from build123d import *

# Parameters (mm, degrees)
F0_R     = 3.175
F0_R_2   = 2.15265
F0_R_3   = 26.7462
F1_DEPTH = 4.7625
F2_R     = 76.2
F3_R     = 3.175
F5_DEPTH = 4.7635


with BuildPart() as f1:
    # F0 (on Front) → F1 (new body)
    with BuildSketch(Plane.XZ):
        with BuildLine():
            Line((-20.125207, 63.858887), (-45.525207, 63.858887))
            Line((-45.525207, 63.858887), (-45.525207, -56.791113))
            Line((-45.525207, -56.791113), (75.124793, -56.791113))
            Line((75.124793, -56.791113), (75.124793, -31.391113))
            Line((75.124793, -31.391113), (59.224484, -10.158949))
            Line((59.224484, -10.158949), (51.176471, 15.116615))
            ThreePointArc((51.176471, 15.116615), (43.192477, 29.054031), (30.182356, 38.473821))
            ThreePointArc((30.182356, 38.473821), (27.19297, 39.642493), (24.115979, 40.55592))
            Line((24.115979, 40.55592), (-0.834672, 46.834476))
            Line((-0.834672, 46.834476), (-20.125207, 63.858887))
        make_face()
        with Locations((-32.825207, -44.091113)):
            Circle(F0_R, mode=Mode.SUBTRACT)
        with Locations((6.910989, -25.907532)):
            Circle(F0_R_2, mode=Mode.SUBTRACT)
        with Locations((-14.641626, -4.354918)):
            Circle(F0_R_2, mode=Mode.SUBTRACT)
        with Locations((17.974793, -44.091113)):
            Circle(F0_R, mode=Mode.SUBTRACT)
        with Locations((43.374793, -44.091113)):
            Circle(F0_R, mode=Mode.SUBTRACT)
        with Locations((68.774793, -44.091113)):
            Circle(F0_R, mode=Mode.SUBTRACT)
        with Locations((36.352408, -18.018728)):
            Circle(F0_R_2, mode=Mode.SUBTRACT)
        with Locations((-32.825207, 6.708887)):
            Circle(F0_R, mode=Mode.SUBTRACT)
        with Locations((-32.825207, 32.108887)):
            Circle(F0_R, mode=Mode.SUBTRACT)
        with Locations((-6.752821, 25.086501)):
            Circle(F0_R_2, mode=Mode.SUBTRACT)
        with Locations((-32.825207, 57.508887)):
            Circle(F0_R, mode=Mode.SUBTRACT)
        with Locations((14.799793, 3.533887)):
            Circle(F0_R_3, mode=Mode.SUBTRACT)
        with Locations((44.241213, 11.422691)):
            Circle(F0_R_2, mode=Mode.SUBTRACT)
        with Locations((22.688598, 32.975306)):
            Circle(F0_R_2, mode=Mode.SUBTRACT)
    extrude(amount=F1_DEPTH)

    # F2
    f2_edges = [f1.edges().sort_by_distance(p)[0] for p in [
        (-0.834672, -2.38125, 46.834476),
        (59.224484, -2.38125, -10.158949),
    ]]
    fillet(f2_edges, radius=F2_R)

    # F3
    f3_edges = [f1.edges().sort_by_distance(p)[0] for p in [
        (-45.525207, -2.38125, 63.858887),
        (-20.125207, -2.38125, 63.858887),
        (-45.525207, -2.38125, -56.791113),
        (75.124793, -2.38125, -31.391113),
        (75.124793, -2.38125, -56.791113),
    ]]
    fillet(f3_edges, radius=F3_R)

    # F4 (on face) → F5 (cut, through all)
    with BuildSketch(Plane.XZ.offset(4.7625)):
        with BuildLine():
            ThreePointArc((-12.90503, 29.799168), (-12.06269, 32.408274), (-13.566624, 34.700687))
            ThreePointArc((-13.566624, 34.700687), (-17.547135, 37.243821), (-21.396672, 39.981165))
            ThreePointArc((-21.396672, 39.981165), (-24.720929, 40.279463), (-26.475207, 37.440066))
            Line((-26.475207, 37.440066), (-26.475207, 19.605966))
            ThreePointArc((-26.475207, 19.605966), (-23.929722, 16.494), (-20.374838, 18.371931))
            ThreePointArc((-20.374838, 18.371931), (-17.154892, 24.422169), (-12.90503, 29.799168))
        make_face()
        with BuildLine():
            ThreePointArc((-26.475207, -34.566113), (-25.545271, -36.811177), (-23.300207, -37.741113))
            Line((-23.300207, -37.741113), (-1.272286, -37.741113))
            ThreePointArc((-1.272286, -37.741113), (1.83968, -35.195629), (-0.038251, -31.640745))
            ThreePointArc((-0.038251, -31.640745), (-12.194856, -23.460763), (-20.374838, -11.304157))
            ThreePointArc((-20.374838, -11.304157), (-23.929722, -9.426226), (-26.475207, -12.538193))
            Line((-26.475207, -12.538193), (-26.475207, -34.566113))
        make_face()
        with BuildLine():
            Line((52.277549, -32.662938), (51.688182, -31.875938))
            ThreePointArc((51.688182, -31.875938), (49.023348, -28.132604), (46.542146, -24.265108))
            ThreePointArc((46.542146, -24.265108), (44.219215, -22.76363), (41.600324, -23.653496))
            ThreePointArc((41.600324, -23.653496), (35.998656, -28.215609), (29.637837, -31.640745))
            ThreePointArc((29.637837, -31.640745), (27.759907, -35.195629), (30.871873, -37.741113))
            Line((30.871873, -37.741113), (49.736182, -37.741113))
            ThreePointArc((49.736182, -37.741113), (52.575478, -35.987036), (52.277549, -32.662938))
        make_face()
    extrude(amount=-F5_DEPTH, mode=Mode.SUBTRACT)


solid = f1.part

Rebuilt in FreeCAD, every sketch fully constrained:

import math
import FreeCAD as App
import Part
import Sketcher
Q = App.Units.Quantity


def edges_at(feature, points):
    """Names of the edges that pass closest to the given points."""
    edges = feature.Shape.Edges
    near = lambda p: min(range(len(edges)), key=lambda i: edges[i].distToShape(Part.Vertex(*p))[0])
    return sorted({f"Edge{near(p) + 1}" for p in points})

doc = App.newDocument("Part")
body = doc.addObject("PartDesign::Body", "Body")

sketch1 = body.newObject("Sketcher::SketchObject", "Sketch")
sketch1.AttachmentSupport = (doc.getObject("XZ_Plane"), [""])
sketch1.MapMode = "FlatFace"
sketch1.addGeometry(Part.LineSegment(App.Vector(-20.125207, 63.858887, 0), App.Vector(-45.525207, 63.858887, 0)), False)
sketch1.addGeometry(Part.LineSegment(App.Vector(-45.525207, 63.858887, 0), App.Vector(-45.525207, -56.791113, 0)), False)
sketch1.addGeometry(Part.LineSegment(App.Vector(-45.525207, -56.791113, 0), App.Vector(75.124793, -56.791113, 0)), False)
sketch1.addGeometry(Part.LineSegment(App.Vector(75.124793, -56.791113, 0), App.Vector(75.124793, -31.391113, 0)), False)
sketch1.addGeometry(Part.LineSegment(App.Vector(75.124793, -31.391113, 0), App.Vector(59.224484, -10.158949, 0)), False)
sketch1.addGeometry(Part.LineSegment(App.Vector(59.224484, -10.158949, 0), App.Vector(51.176471, 15.116615, 0)), False)
sketch1.addGeometry(Part.ArcOfCircle(Part.Circle(App.Vector(14.799793, 3.533886, 0), App.Vector(0, 0, 1), 38.176201), math.radians(17.66204), math.radians(66.238154)), False)
sketch1.addGeometry(Part.ArcOfCircle(Part.Circle(App.Vector(14.799819, 3.533967, 0), App.Vector(0, 0, 1), 38.176116), math.radians(66.23814), math.radians(75.875418)), False)
sketch1.addGeometry(Part.LineSegment(App.Vector(24.115979, 40.55592, 0), App.Vector(-0.834672, 46.834476, 0)), False)
sketch1.addGeometry(Part.LineSegment(App.Vector(-0.834672, 46.834476, 0), App.Vector(-20.125207, 63.858887, 0)), False)
sketch1.addGeometry(Part.Circle(App.Vector(-32.825207, -44.091113, 0), App.Vector(0, 0, 1), 3.175), False)
sketch1.addGeometry(Part.Circle(App.Vector(6.910989, -25.907532, 0), App.Vector(0, 0, 1), 2.15265), False)
sketch1.addGeometry(Part.Circle(App.Vector(-32.825207, 6.708887, 0), App.Vector(0, 0, 1), 3.175), False)
sketch1.addGeometry(Part.Circle(App.Vector(-14.641626, -4.354918, 0), App.Vector(0, 0, 1), 2.15265), False)
sketch1.addGeometry(Part.Circle(App.Vector(14.799793, 3.533887, 0), App.Vector(0, 0, 1), 26.7462), False)
sketch1.addGeometry(Part.Circle(App.Vector(17.974793, -44.091113, 0), App.Vector(0, 0, 1), 3.175), False)
sketch1.addGeometry(Part.Circle(App.Vector(43.374793, -44.091113, 0), App.Vector(0, 0, 1), 3.175), False)
sketch1.addGeometry(Part.Circle(App.Vector(68.774793, -44.091113, 0), App.Vector(0, 0, 1), 3.175), False)
sketch1.addGeometry(Part.Circle(App.Vector(36.352408, -18.018728, 0), App.Vector(0, 0, 1), 2.15265), False)
sketch1.addGeometry(Part.Circle(App.Vector(-32.825207, 32.108887, 0), App.Vector(0, 0, 1), 3.175), False)
sketch1.addGeometry(Part.Circle(App.Vector(-6.752821, 25.086501, 0), App.Vector(0, 0, 1), 2.15265), False)
sketch1.addGeometry(Part.Circle(App.Vector(-32.825207, 57.508887, 0), App.Vector(0, 0, 1), 3.175), False)
sketch1.addGeometry(Part.Circle(App.Vector(44.241213, 11.422691, 0), App.Vector(0, 0, 1), 2.15265), False)
sketch1.addGeometry(Part.Circle(App.Vector(22.688598, 32.975306, 0), App.Vector(0, 0, 1), 2.15265), False)
sketch1.addConstraint(Sketcher.Constraint("Coincident", 0, 2, 1, 1))
sketch1.addConstraint(Sketcher.Constraint("Coincident", 1, 2, 2, 1))
sketch1.addConstraint(Sketcher.Constraint("Coincident", 2, 2, 3, 1))
sketch1.addConstraint(Sketcher.Constraint("Coincident", 3, 2, 4, 1))
sketch1.addConstraint(Sketcher.Constraint("Coincident", 4, 2, 5, 1))
sketch1.addConstraint(Sketcher.Constraint("Coincident", 5, 2, 6, 1))
sketch1.addConstraint(Sketcher.Constraint("Coincident", 6, 2, 7, 1))
sketch1.addConstraint(Sketcher.Constraint("Coincident", 7, 2, 8, 1))
sketch1.addConstraint(Sketcher.Constraint("Coincident", 8, 2, 9, 1))
sketch1.addConstraint(Sketcher.Constraint("Coincident", 9, 2, 0, 1))
sketch1.addConstraint(Sketcher.Constraint("Horizontal", 0))
sketch1.addConstraint(Sketcher.Constraint("Vertical", 1))
sketch1.addConstraint(Sketcher.Constraint("Horizontal", 2))
sketch1.addConstraint(Sketcher.Constraint("Vertical", 3))
sketch1.addConstraint(Sketcher.Constraint("Coincident", 14, 3, 6, 3))
sketch1.addConstraint(Sketcher.Constraint("Diameter", 10, Q("0.25 in")))
sketch1.addConstraint(Sketcher.Constraint("Diameter", 12, Q("0.25 in")))
sketch1.addConstraint(Sketcher.Constraint("Diameter", 15, Q("0.25 in")))
sketch1.addConstraint(Sketcher.Constraint("Diameter", 16, Q("0.25 in")))
sketch1.addConstraint(Sketcher.Constraint("Diameter", 17, Q("0.25 in")))
sketch1.addConstraint(Sketcher.Constraint("Diameter", 19, Q("0.25 in")))
sketch1.addConstraint(Sketcher.Constraint("Diameter", 21, Q("0.25 in")))
sketch1.addConstraint(Sketcher.Constraint("DistanceX", 0, 2, 0, 1, Q("1 in")))
sketch1.addConstraint(Sketcher.Constraint("DistanceY", 3, 1, 3, 2, Q("1 in")))
sketch1.addConstraint(Sketcher.Constraint("Diameter", 14, Q("2.106 in")))
sketch1.addConstraint(Sketcher.Constraint("Radius", 6, Q("1.503 in")))
sketch1.addConstraint(Sketcher.Constraint("DistanceY", 10, 3, 12, 3, Q("2 in")))
sketch1.addConstraint(Sketcher.Constraint("DistanceX", 10, 3, 15, 3, Q("2 in")))
sketch1.addConstraint(Sketcher.Constraint("DistanceX", 15, 3, 16, 3, Q("1 in")))
sketch1.addConstraint(Sketcher.Constraint("DistanceX", 16, 3, 17, 3, Q("1 in")))
sketch1.addConstraint(Sketcher.Constraint("DistanceY", 12, 3, 19, 3, Q("1 in")))
sketch1.addConstraint(Sketcher.Constraint("DistanceY", 19, 3, 21, 3, Q("1 in")))
sketch1.addConstraint(Sketcher.Constraint("Diameter", 11, Q("0.1695 in")))
sketch1.addConstraint(Sketcher.Constraint("Diameter", 13, Q("0.1695 in")))
sketch1.addConstraint(Sketcher.Constraint("Diameter", 18, Q("0.1695 in")))
sketch1.addConstraint(Sketcher.Constraint("Diameter", 20, Q("0.1695 in")))
sketch1.addConstraint(Sketcher.Constraint("Diameter", 22, Q("0.1695 in")))
sketch1.addConstraint(Sketcher.Constraint("Diameter", 23, Q("0.1695 in")))
sketch1.addConstraint(Sketcher.Constraint("DistanceX", 2, 1, 2, 2, Q("4.75 in")))
sketch1.addConstraint(Sketcher.Constraint("DistanceY", 1, 2, 1, 1, Q("4.75 in")))
sketch1.addConstraint(Sketcher.Constraint("DistanceX", 0, 2, 21, 3, Q("0.5 in")))
sketch1.addConstraint(Sketcher.Constraint("DistanceX", 0, 2, 19, 3, Q("0.5 in")))
sketch1.addConstraint(Sketcher.Constraint("DistanceX", 0, 2, 12, 3, Q("0.5 in")))
sketch1.addConstraint(Sketcher.Constraint("DistanceX", 1, 2, 10, 3, Q("0.5 in")))
sketch1.addConstraint(Sketcher.Constraint("DistanceY", 1, 2, 10, 3, Q("0.5 in")))
sketch1.addConstraint(Sketcher.Constraint("DistanceY", 1, 2, 15, 3, Q("0.5 in")))
sketch1.addConstraint(Sketcher.Constraint("DistanceY", 2, 2, 17, 3, Q("0.5 in")))
sketch1.addConstraint(Sketcher.Constraint("DistanceY", 2, 2, 16, 3, Q("0.5 in")))
sketch1.addConstraint(Sketcher.Constraint("DistanceX", 10, 3, 6, 3, Q("1.875 in")))
sketch1.addConstraint(Sketcher.Constraint("DistanceY", 10, 3, 6, 3, Q("1.8749999 in")))
sketch1.addConstraint(Sketcher.Constraint("Radius", 7, 38.176116))
sketch1.addConstraint(Sketcher.Constraint("DistanceY", -1, 1, 20, 3, 25.086501))
sketch1.addConstraint(Sketcher.Constraint("DistanceY", 11, 3, 7, 3, 29.441499))
sketch1.addConstraint(Sketcher.Constraint("DistanceY", 6, 2, 7, 2, 2.082099))
sketch1.addConstraint(Sketcher.Constraint("DistanceX", 20, 3, 7, 2, 30.8688))
sketch1.addConstraint(Sketcher.Constraint("Distance", 8, 25.728491))
sketch1.addConstraint(Sketcher.Constraint("DistanceX", -1, 1, 7, 3, 14.799819))
sketch1.addConstraint(Sketcher.Constraint("DistanceX", -1, 1, 11, 3, 6.910989))
sketch1.addConstraint(Sketcher.Constraint("DistanceY", 11, 3, -1, 1, 25.907532))
sketch1.addConstraint(Sketcher.Constraint("DistanceX", 20, 3, -1, 1, 6.752821))
sketch1.addConstraint(Sketcher.Constraint("DistanceY", -1, 1, 22, 3, 11.422691))
sketch1.addConstraint(Sketcher.Constraint("DistanceY", 4, 2, -1, 1, 10.158949))
sketch1.addConstraint(Sketcher.Constraint("DistanceX", -1, 1, 5, 2, 51.176471))
sketch1.addConstraint(Sketcher.Constraint("DistanceX", 8, 2, -1, 1, 0.834672))
sketch1.addConstraint(Sketcher.Constraint("DistanceY", 10, 3, 7, 3, 47.62508))
sketch1.addConstraint(Sketcher.Constraint("DistanceX", 12, 3, 13, 3, 18.183581))
sketch1.addConstraint(Sketcher.Constraint("DistanceX", 11, 3, 18, 3, 29.441419))
sketch1.addConstraint(Sketcher.Constraint("DistanceY", 13, 3, 20, 3, 29.441419))
sketch1.addConstraint(Sketcher.Constraint("DistanceY", 18, 3, 22, 3, 29.441419))
sketch1.addConstraint(Sketcher.Constraint("DistanceX", 14, 3, 22, 3, 29.44142))
sketch1.addConstraint(Sketcher.Constraint("DistanceX", 7, 3, 23, 3, 7.888779))
sketch1.addConstraint(Sketcher.Constraint("DistanceY", 7, 3, 23, 3, 29.441339))
sketch1.addConstraint(Sketcher.Constraint("DistanceX", 22, 3, 4, 2, 14.983271))
pad1 = body.newObject("PartDesign::Pad", "Pad")
pad1.Profile = sketch1
pad1.Length = Q("0.1875 in")
doc.recompute()

fillet = body.newObject("PartDesign::Fillet", "Fillet")
fillet.Base = (pad1, edges_at(pad1, [(-0.835, -2.381, 46.834), (59.224, -2.381, -10.159)]))
fillet.Radius = Q("3 in")
doc.recompute()

fillet2 = body.newObject("PartDesign::Fillet", "Fillet001")
fillet2.Base = (fillet, edges_at(fillet, [
    (-45.525, -2.381, 63.859),
    (-20.125, -2.381, 63.859),
    (-45.525, -2.381, -56.791),
    (75.125, -2.381, -31.391),
    (75.125, -2.381, -56.791),
]))
fillet2.Radius = Q("0.125 in")

sketch2 = body.newObject("Sketcher::SketchObject", "Sketch001")
sketch2.AttachmentSupport = (doc.getObject("XZ_Plane"), [""])
sketch2.MapMode = "FlatFace"
sketch2.AttachmentOffset = App.Placement(App.Vector(0, 0, 0.1875 * 25.4), App.Rotation())
sketch2.addGeometry(Part.ArcOfCircle(Part.Circle(App.Vector(-15.209157, 31.983573, 0), App.Vector(0, 0, 1), 3.175), math.radians(-43.47212), math.radians(58.846466)), False)
sketch2.addGeometry(Part.ArcOfCircle(Part.Circle(App.Vector(35.709254, 116.213959, 0), App.Vector(0, 0, 1), 95.249807), math.radians(-126.836852), math.radians(-121.153531)), False)
sketch2.addGeometry(Part.ArcOfCircle(Part.Circle(App.Vector(-23.300207, 37.440066, 0), App.Vector(0, 0, 1), 3.175), math.radians(53.163159), math.radians(179.999999)), False)
sketch2.addGeometry(Part.LineSegment(App.Vector(-26.475207, 37.440066, 0), App.Vector(-26.475207, 19.605966, 0)), False)
sketch2.addGeometry(Part.ArcOfCircle(Part.Circle(App.Vector(-23.300207, 19.605967, 0), App.Vector(0, 0, 1), 3.175), math.radians(-179.999986), math.radians(-22.871933)), False)
sketch2.addGeometry(Part.ArcOfCircle(Part.Circle(App.Vector(14.799787, 3.533891, 0), App.Vector(0, 0, 1), 38.176193), math.radians(136.527883), math.radians(157.128069)), False)
sketch2.addGeometry(Part.ArcOfCircle(Part.Circle(App.Vector(-23.300207, -34.566113, 0), App.Vector(0, 0, 1), 3.175), math.radians(-179.999998), math.radians(-90.000002)), False)
sketch2.addGeometry(Part.LineSegment(App.Vector(-23.300207, -37.741113, 0), App.Vector(-1.272286, -37.741113, 0)), False)
sketch2.addGeometry(Part.ArcOfCircle(Part.Circle(App.Vector(-1.272286, -34.566113, 0), App.Vector(0, 0, 1), 3.175), math.radians(-89.999999), math.radians(67.128076)), False)
sketch2.addGeometry(Part.ArcOfCircle(Part.Circle(App.Vector(14.7998, 3.533892, 0), App.Vector(0, 0, 1), 38.176208), math.radians(-157.128065), math.radians(-112.871938)), False)
sketch2.addGeometry(Part.ArcOfCircle(Part.Circle(App.Vector(-23.300207, -12.538193, 0), App.Vector(0, 0, 1), 3.175), math.radians(22.871933), math.radians(180.000004)), False)
sketch2.addGeometry(Part.LineSegment(App.Vector(-26.475207, -12.538193, 0), App.Vector(-26.475207, -34.566113, 0)), False)
sketch2.addGeometry(Part.LineSegment(App.Vector(52.277549, -32.662938, 0), App.Vector(51.688182, -31.875938, 0)), False)
sketch2.addGeometry(Part.ArcOfCircle(Part.Circle(App.Vector(127.929085, 25.219233, 0), App.Vector(0, 0, 1), 95.24985), math.radians(-148.699842), math.radians(-143.17125)), False)
sketch2.addGeometry(Part.ArcOfCircle(Part.Circle(App.Vector(43.829244, -25.914591, 0), App.Vector(0, 0, 1), 3.175001), math.radians(31.300196), math.radians(134.589424)), False)
sketch2.addGeometry(Part.ArcOfCircle(Part.Circle(App.Vector(14.799799, 3.533876, 0), App.Vector(0, 0, 1), 38.176188), math.radians(-67.128071), math.radians(-45.410542)), False)
sketch2.addGeometry(Part.ArcOfCircle(Part.Circle(App.Vector(30.871873, -34.566113, 0), App.Vector(0, 0, 1), 3.175), math.radians(112.871945), math.radians(269.999995)), False)
sketch2.addGeometry(Part.LineSegment(App.Vector(30.871873, -37.741113, 0), App.Vector(49.736182, -37.741113, 0)), False)
sketch2.addGeometry(Part.ArcOfCircle(Part.Circle(App.Vector(49.736182, -34.566113, 0), App.Vector(0, 0, 1), 3.175), math.radians(-90.000001), math.radians(36.828756)), False)
sketch2.addConstraint(Sketcher.Constraint("Coincident", 0, 2, 1, 2))
sketch2.addConstraint(Sketcher.Constraint("Coincident", 1, 1, 2, 1))
sketch2.addConstraint(Sketcher.Constraint("Coincident", 2, 2, 3, 1))
sketch2.addConstraint(Sketcher.Constraint("Coincident", 3, 2, 4, 1))
sketch2.addConstraint(Sketcher.Constraint("Coincident", 4, 2, 5, 2))
sketch2.addConstraint(Sketcher.Constraint("Coincident", 5, 1, 0, 1))
sketch2.addConstraint(Sketcher.Constraint("Coincident", 6, 2, 7, 1))
sketch2.addConstraint(Sketcher.Constraint("Coincident", 7, 2, 8, 1))
sketch2.addConstraint(Sketcher.Constraint("Coincident", 8, 2, 9, 2))
sketch2.addConstraint(Sketcher.Constraint("Coincident", 9, 1, 10, 1))
sketch2.addConstraint(Sketcher.Constraint("Coincident", 10, 2, 11, 1))
sketch2.addConstraint(Sketcher.Constraint("Coincident", 11, 2, 6, 1))
sketch2.addConstraint(Sketcher.Constraint("Coincident", 12, 2, 13, 2))
sketch2.addConstraint(Sketcher.Constraint("Coincident", 13, 1, 14, 1))
sketch2.addConstraint(Sketcher.Constraint("Coincident", 14, 2, 15, 2))
sketch2.addConstraint(Sketcher.Constraint("Coincident", 15, 1, 16, 1))
sketch2.addConstraint(Sketcher.Constraint("Coincident", 16, 2, 17, 1))
sketch2.addConstraint(Sketcher.Constraint("Coincident", 17, 2, 18, 1))
sketch2.addConstraint(Sketcher.Constraint("Coincident", 18, 2, 12, 1))
sketch2.addConstraint(Sketcher.Constraint("Vertical", 3))
sketch2.addConstraint(Sketcher.Constraint("Horizontal", 7))
sketch2.addConstraint(Sketcher.Constraint("Vertical", 11))
sketch2.addConstraint(Sketcher.Constraint("Horizontal", 17))
sketch2.addConstraint(Sketcher.Constraint("Radius", 0, Q("0.125 in")))
sketch2.addConstraint(Sketcher.Constraint("Radius", 2, Q("0.125 in")))
sketch2.addConstraint(Sketcher.Constraint("Radius", 4, Q("0.125 in")))
sketch2.addConstraint(Sketcher.Constraint("Radius", 6, Q("0.125 in")))
sketch2.addConstraint(Sketcher.Constraint("Radius", 8, Q("0.125 in")))
sketch2.addConstraint(Sketcher.Constraint("Radius", 10, Q("0.125 in")))
sketch2.addConstraint(Sketcher.Constraint("Radius", 14, Q("0.1250001 in")))
sketch2.addConstraint(Sketcher.Constraint("Radius", 16, Q("0.125 in")))
sketch2.addConstraint(Sketcher.Constraint("Radius", 18, Q("0.125 in")))
sketch2.addConstraint(Sketcher.Constraint("DistanceY", 6, 3, 5, 3, Q("1.5000001 in")))
sketch2.addConstraint(Sketcher.Constraint("DistanceY", 16, 3, 5, 3, Q("1.5000001 in")))
sketch2.addConstraint(Sketcher.Constraint("Radius", 13, 95.24985))
sketch2.addConstraint(Sketcher.Constraint("DistanceY", 5, 1, 0, 3, Q("0.0860002 in")))
sketch2.addConstraint(Sketcher.Constraint("DistanceX", 10, 2, 6, 2, Q("0.125 in")))
sketch2.addConstraint(Sketcher.Constraint("DistanceY", 6, 2, 11, 2, Q("0.125 in")))
sketch2.addConstraint(Sketcher.Constraint("DistanceY", 3, 2, 3, 1, 17.8341))
sketch2.addConstraint(Sketcher.Constraint("Radius", 1, 95.249807))
sketch2.addConstraint(Sketcher.Constraint("Radius", 5, 38.176193))
sketch2.addConstraint(Sketcher.Constraint("Radius", 9, 38.176208))
sketch2.addConstraint(Sketcher.Constraint("Radius", 15, 38.176188))
sketch2.addConstraint(Sketcher.Constraint("DistanceX", 13, 1, 12, 2, Q("0.2025998 in")))
sketch2.addConstraint(Sketcher.Constraint("DistanceX", 7, 1, 7, 2, 22.027921))
sketch2.addConstraint(Sketcher.Constraint("DistanceX", 17, 1, 17, 2, 18.864309))
sketch2.addConstraint(Sketcher.Constraint("DistanceY", 11, 2, 11, 1, 22.02792))
sketch2.addConstraint(Sketcher.Constraint("DistanceX", -1, 1, 9, 3, 14.7998))
sketch2.addConstraint(Sketcher.Constraint("DistanceX", -1, 1, 15, 3, 14.799799))
sketch2.addConstraint(Sketcher.Constraint("DistanceY", 4, 3, 2, 3, 17.834099))
sketch2.addConstraint(Sketcher.Constraint("DistanceX", 5, 3, 13, 3, 113.129298))
sketch2.addConstraint(Sketcher.Constraint("DistanceY", 14, 3, 10, 3, 13.376398))
sketch2.addConstraint(Sketcher.Constraint("DistanceY", 2, 3, 1, 1, 2.541099))
sketch2.addConstraint(Sketcher.Constraint("DistanceY", 2, 2, 1, 1, 2.541099))
sketch2.addConstraint(Sketcher.Constraint("DistanceX", 18, 3, 12, 2, 1.952))
sketch2.addConstraint(Sketcher.Constraint("DistanceX", 17, 2, 12, 2, 1.952))
sketch2.addConstraint(Sketcher.Constraint("DistanceY", 18, 2, 12, 2, 0.787))
sketch2.addConstraint(Sketcher.Constraint("Distance", 12, 0.98322))
sketch2.addConstraint(Sketcher.Constraint("DistanceY", -1, 1, 1, 3, 116.213959))
sketch2.addConstraint(Sketcher.Constraint("DistanceY", -1, 1, 5, 3, 3.533891))
sketch2.addConstraint(Sketcher.Constraint("DistanceY", 14, 3, -1, 1, 25.914591))
sketch2.addConstraint(Sketcher.Constraint("DistanceX", 1, 1, -1, 1, 21.396672))
sketch2.addConstraint(Sketcher.Constraint("DistanceX", 4, 2, -1, 1, 20.374838))
sketch2.addConstraint(Sketcher.Constraint("DistanceY", -1, 1, 4, 2, 18.371931))
sketch2.addConstraint(Sketcher.Constraint("DistanceX", 8, 2, -1, 1, 0.038251))
sketch2.addConstraint(Sketcher.Constraint("DistanceX", 9, 1, -1, 1, 20.374838))
sketch2.addConstraint(Sketcher.Constraint("DistanceX", -1, 1, 12, 2, 51.688182))
sketch2.addConstraint(Sketcher.Constraint("DistanceX", 6, 3, 0, 3, 8.09105))
sketch2.addConstraint(Sketcher.Constraint("DistanceY", 0, 2, 2, 3, 2.739379))
sketch2.addConstraint(Sketcher.Constraint("DistanceX", 14, 2, 14, 3, 2.22892))
sketch2.addConstraint(Sketcher.Constraint("DistanceY", 16, 3, 15, 1, 2.925368))
pocket1 = body.newObject("PartDesign::Pocket", "Pocket")
pocket1.Profile = sketch2
pocket1.Type = "ThroughAll"

doc.recompute()
